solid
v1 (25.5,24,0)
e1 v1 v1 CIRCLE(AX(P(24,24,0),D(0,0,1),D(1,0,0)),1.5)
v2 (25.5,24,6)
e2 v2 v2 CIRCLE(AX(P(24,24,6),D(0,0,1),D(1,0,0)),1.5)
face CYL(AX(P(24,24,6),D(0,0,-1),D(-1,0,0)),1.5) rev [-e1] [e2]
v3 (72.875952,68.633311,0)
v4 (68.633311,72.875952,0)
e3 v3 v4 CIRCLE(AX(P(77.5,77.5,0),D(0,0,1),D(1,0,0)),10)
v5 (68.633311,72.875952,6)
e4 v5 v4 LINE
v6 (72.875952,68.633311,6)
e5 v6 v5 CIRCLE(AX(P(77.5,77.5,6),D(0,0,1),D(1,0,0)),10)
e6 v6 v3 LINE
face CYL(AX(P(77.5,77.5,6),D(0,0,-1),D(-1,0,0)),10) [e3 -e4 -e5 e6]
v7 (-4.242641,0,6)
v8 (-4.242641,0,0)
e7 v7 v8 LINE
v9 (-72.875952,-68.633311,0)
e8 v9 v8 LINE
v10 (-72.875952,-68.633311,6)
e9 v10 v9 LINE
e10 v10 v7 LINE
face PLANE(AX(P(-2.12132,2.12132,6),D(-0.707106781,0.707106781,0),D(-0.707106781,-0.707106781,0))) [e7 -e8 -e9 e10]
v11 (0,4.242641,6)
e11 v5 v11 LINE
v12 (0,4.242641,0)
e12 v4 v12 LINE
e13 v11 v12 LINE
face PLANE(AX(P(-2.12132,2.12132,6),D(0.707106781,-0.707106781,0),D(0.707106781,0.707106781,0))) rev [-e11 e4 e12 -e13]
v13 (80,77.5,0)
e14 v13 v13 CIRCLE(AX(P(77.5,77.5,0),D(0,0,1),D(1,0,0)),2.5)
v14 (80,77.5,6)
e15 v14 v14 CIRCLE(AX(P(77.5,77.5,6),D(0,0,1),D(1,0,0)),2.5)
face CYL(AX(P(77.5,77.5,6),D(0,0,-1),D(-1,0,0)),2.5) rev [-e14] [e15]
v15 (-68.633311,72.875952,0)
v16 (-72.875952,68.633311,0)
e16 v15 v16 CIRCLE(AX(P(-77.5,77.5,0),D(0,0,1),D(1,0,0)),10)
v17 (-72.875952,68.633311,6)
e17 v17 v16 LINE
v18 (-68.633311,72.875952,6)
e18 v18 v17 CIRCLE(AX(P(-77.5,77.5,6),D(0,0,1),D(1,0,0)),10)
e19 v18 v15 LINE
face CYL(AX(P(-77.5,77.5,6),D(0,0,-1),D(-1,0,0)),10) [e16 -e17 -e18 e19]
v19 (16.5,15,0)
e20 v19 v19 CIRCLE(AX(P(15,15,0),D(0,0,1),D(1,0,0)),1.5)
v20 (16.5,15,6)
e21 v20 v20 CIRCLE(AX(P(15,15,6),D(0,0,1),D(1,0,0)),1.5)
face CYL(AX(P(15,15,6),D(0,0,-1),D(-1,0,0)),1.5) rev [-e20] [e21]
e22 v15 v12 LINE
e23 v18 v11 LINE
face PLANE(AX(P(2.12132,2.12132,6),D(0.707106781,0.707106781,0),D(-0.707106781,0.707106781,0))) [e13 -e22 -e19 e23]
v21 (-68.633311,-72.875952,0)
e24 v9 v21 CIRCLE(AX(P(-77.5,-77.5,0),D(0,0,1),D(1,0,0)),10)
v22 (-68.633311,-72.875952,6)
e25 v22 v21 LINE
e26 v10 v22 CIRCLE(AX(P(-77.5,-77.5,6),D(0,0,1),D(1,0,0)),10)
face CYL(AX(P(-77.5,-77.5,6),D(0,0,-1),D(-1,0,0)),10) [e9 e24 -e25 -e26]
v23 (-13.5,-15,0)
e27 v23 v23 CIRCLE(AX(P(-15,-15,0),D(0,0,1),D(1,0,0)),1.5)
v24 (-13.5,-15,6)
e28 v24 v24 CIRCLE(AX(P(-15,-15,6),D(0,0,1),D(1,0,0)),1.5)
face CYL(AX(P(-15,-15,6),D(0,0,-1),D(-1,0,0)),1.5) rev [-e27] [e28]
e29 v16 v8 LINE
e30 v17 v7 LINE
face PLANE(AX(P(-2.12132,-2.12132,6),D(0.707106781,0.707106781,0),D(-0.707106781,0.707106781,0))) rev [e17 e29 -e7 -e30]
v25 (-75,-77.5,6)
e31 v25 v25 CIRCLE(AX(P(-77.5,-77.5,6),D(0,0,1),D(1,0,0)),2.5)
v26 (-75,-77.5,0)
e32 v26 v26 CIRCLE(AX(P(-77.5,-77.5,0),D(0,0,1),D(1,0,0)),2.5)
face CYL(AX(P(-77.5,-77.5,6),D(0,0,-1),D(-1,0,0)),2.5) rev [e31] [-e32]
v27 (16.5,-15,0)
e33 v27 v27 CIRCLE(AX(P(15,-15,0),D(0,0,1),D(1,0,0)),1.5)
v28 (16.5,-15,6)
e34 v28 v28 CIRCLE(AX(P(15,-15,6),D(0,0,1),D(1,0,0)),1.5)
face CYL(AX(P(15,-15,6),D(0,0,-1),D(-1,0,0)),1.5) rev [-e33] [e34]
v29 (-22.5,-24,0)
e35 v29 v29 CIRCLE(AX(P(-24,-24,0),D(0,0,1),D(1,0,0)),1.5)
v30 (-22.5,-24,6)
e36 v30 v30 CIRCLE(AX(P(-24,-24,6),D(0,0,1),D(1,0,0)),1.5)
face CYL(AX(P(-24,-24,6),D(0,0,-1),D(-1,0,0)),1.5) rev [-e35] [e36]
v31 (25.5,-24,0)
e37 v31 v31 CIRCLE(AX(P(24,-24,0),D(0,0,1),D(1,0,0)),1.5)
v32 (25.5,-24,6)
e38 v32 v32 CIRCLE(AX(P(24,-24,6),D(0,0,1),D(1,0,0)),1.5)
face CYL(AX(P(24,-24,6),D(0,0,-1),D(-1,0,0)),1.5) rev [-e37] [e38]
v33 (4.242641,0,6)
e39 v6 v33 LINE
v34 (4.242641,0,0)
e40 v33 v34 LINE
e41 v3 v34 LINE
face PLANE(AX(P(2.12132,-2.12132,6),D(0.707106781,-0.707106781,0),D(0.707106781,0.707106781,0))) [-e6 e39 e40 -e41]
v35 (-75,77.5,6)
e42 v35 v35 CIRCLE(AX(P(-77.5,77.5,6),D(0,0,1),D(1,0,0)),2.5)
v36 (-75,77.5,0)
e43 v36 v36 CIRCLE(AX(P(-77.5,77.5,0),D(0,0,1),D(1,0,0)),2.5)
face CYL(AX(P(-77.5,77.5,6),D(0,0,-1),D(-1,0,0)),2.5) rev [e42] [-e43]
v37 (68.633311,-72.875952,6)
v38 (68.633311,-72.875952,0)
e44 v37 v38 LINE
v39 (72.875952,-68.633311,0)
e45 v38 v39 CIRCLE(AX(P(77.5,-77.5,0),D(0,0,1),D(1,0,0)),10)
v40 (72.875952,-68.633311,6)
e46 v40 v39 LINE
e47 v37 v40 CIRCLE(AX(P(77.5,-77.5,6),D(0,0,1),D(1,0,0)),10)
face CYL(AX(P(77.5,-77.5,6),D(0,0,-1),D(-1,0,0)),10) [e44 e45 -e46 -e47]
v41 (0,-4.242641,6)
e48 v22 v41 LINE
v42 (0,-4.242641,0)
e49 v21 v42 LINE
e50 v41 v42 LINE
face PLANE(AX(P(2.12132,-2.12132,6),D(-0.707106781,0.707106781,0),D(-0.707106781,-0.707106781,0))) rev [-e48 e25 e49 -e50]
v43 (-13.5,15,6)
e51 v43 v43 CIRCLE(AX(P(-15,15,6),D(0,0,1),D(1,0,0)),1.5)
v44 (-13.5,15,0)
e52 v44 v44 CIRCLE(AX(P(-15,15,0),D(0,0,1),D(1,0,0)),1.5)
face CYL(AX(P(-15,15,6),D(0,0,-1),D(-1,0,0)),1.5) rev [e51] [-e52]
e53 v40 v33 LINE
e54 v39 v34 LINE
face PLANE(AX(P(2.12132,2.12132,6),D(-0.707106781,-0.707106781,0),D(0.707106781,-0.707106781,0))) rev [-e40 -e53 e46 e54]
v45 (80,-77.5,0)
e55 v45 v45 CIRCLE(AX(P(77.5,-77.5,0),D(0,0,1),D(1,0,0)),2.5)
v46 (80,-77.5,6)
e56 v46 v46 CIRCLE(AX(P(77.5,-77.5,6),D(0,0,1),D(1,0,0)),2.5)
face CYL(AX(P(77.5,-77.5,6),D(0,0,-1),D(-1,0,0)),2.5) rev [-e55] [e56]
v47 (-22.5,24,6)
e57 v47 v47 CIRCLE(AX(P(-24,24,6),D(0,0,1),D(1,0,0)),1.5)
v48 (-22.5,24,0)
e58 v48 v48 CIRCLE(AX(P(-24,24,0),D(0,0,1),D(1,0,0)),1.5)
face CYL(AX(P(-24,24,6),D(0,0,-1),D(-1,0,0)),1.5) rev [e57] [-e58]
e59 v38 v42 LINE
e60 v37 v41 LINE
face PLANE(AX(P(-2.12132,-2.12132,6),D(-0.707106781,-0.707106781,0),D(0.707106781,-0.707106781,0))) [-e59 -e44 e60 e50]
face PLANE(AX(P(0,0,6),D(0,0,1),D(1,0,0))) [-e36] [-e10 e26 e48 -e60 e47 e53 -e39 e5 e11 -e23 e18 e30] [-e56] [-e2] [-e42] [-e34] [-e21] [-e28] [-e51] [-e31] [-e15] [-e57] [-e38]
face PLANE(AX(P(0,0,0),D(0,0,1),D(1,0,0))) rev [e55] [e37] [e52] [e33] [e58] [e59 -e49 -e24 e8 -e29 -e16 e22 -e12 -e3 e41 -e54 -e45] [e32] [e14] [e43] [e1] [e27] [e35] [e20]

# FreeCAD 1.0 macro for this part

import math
import FreeCAD as App
import Part
import Sketcher
from FreeCAD import Vector
Q = App.Units.Quantity

doc = App.newDocument("Part")
params = doc.addObject("Spreadsheet::Sheet", "Params")
for row, (alias, value) in enumerate([
    ("sketch1_diameter", "5 mm"),
    ("sketch1_diameter2", "3 mm"),
    ("sketch1_radius", "10 mm"),
    ("pad1_length", "6 mm"),
], start=1):
    params.set(f"A{row}", alias)
    params.set(f"B{row}", "=" + value)
    params.setAlias(f"B{row}", alias)

body = doc.addObject("PartDesign::Body", "Body")

# Sketch on XY plane
sketch1 = body.newObject("Sketcher::SketchObject", "Sketch")
sketch1.AttachmentSupport = (doc.getObject("XY_Plane"), [""])
sketch1.MapMode = "FlatFace"
sketch1.addGeometry([
    Part.LineSegment(Vector(-4.242641, 0, 0), Vector(-72.875952, -68.633311, 0)),  # 0
    Part.ArcOfCircle(Part.Circle(Vector(-77.5, -77.5, 0), Vector(0, 0, 1), 10), math.radians(62.457603), math.radians(387.542397)),  # 1
    Part.LineSegment(Vector(-68.633311, -72.875952, 0), Vector(0, -4.242641, 0)),  # 2
    Part.LineSegment(Vector(0, -4.242641, 0), Vector(68.633311, -72.875952, 0)),  # 3
    Part.ArcOfCircle(Part.Circle(Vector(77.5, -77.5, 0), Vector(0, 0, 1), 10), math.radians(152.457603), math.radians(477.542397)),  # 4
    Part.LineSegment(Vector(72.875952, -68.633311, 0), Vector(4.242641, 0, 0)),  # 5
    Part.LineSegment(Vector(4.242641, 0, 0), Vector(72.875952, 68.633311, 0)),  # 6
    Part.ArcOfCircle(Part.Circle(Vector(77.5, 77.5, 0), Vector(0, 0, 1), 10), math.radians(-117.542397), math.radians(207.542397)),  # 7
    Part.LineSegment(Vector(68.633311, 72.875952, 0), Vector(0, 4.242641, 0)),  # 8
    Part.LineSegment(Vector(0, 4.242641, 0), Vector(-68.633311, 72.875952, 0)),  # 9
    Part.ArcOfCircle(Part.Circle(Vector(-77.5, 77.5, 0), Vector(0, 0, 1), 10), math.radians(-27.542397), math.radians(297.542397)),  # 10
    Part.LineSegment(Vector(-72.875952, 68.633311, 0), Vector(-4.242641, 0, 0)),  # 11
    Part.Circle(Vector(77.5, -77.5, 0), Vector(0, 0, 1), 2.5),  # 12
    Part.Circle(Vector(24, -24, 0), Vector(0, 0, 1), 1.5),  # 13
    Part.Circle(Vector(15, -15, 0), Vector(0, 0, 1), 1.5),  # 14
    Part.Circle(Vector(-77.5, -77.5, 0), Vector(0, 0, 1), 2.5),  # 15
    Part.Circle(Vector(-24, -24, 0), Vector(0, 0, 1), 1.5),  # 16
    Part.Circle(Vector(-15, -15, 0), Vector(0, 0, 1), 1.5),  # 17
    Part.Circle(Vector(15, 15, 0), Vector(0, 0, 1), 1.5),  # 18
    Part.Circle(Vector(24, 24, 0), Vector(0, 0, 1), 1.5),  # 19
    Part.Circle(Vector(77.5, 77.5, 0), Vector(0, 0, 1), 2.5),  # 20
    Part.Circle(Vector(-15, 15, 0), Vector(0, 0, 1), 1.5),  # 21
    Part.Circle(Vector(-24, 24, 0), Vector(0, 0, 1), 1.5),  # 22
    Part.Circle(Vector(-77.5, 77.5, 0), Vector(0, 0, 1), 2.5),  # 23
], False)
sketch1.addConstraint([
    Sketcher.Constraint("Coincident", 0, 2, 1, 1),
    Sketcher.Constraint("Coincident", 1, 2, 2, 1),
    Sketcher.Constraint("Coincident", 2, 2, 3, 1),
    Sketcher.Constraint("Coincident", 3, 2, 4, 1),
    Sketcher.Constraint("Coincident", 4, 2, 5, 1),
    Sketcher.Constraint("Coincident", 5, 2, 6, 1),
    Sketcher.Constraint("Coincident", 6, 2, 7, 1),
    Sketcher.Constraint("Coincident", 7, 2, 8, 1),
    Sketcher.Constraint("Coincident", 8, 2, 9, 1),
    Sketcher.Constraint("Coincident", 9, 2, 10, 1),
    Sketcher.Constraint("Coincident", 10, 2, 11, 1),
    Sketcher.Constraint("Coincident", 11, 2, 0, 1),
    Sketcher.Constraint("Coincident", 12, 3, 4, 3),
    Sketcher.Constraint("Coincident", 15, 3, 1, 3),
    Sketcher.Constraint("Coincident", 20, 3, 7, 3),
    Sketcher.Constraint("Coincident", 23, 3, 10, 3),
    Sketcher.Constraint("Equal", 1, 4),
    Sketcher.Constraint("Equal", 4, 7),
    Sketcher.Constraint("Equal", 7, 10),
    Sketcher.Constraint("Equal", 13, 14),
    Sketcher.Constraint("Equal", 12, 15),
    Sketcher.Constraint("Equal", 14, 16),
    Sketcher.Constraint("Equal", 16, 17),
    Sketcher.Constraint("Equal", 17, 18),
    Sketcher.Constraint("Equal", 18, 19),
    Sketcher.Constraint("Equal", 15, 20),
    Sketcher.Constraint("Equal", 19, 21),
    Sketcher.Constraint("Equal", 21, 22),
    Sketcher.Constraint("Equal", 20, 23),
    Sketcher.Constraint("Symmetric", 1, 3, 7, 3, -1, 1),
    Sketcher.Constraint("Symmetric", 4, 3, 10, 3, -1, 1),
    Sketcher.Constraint("Symmetric", 17, 3, 18, 3, -1, 1),
    Sketcher.Constraint("Symmetric", 16, 3, 19, 3, -1, 1),
    Sketcher.Constraint("Symmetric", 14, 3, 21, 3, -1, 1),
    Sketcher.Constraint("Symmetric", 13, 3, 22, 3, -1, 1),
    Sketcher.Constraint("Symmetric", 2, 2, 8, 2, -1, 1),
    Sketcher.Constraint("Symmetric", 5, 2, 11, 2, -1, 1),
    Sketcher.Constraint("Symmetric", 1, 3, 4, 3, -2),
    Sketcher.Constraint("Symmetric", 13, 3, 16, 3, -2),
    Sketcher.Constraint("Symmetric", 14, 3, 17, 3, -2),
    Sketcher.Constraint("PointOnObject", 2, 2, -2),
    Sketcher.Constraint("PointOnObject", 5, 2, -1),
    Sketcher.Constraint("Parallel", 0, 2),
    Sketcher.Constraint("Perpendicular", 2, 3),
    Sketcher.Constraint("Parallel", 3, 5),
    Sketcher.Constraint("Perpendicular", 5, 6),
    Sketcher.Constraint("Parallel", 6, 8),
    Sketcher.Constraint("Perpendicular", 8, 9),
    Sketcher.Constraint("Parallel", 9, 11),
    Sketcher.Constraint("Horizontal", 1, 2, 3, 2),
    Sketcher.Constraint("Equal", 0, 2),
    Sketcher.Constraint("Diameter", 12, Q("5 mm")),
    Sketcher.Constraint("Diameter", 13, Q("3 mm")),
    Sketcher.Constraint("Radius", 1, Q("10 mm")),
    Sketcher.Constraint("DistanceX", -1, 1, 13, 3, Q("24 mm")),
    Sketcher.Constraint("DistanceY", 13, 3, -1, 1, Q("24 mm")),
    Sketcher.Constraint("DistanceX", -1, 1, 14, 3, Q("15 mm")),
    Sketcher.Constraint("DistanceY", 14, 3, -1, 1, Q("15 mm")),
    Sketcher.Constraint("DistanceX", 1, 3, 4, 3, Q("155 mm")),
    Sketcher.Constraint("DistanceY", 4, 3, 7, 3, Q("155 mm")),
    Sketcher.Constraint("Distance", 0, Q("97.062159 mm")),
])
sketch1.setExpression("Constraints[51]", "Params.sketch1_diameter")
sketch1.setExpression("Constraints[52]", "Params.sketch1_diameter2")
sketch1.setExpression("Constraints[53]", "Params.sketch1_radius")
pad1 = body.newObject("PartDesign::Pad", "Pad")
pad1.Profile = sketch1
pad1.setExpression("Length", "Params.pad1_length")

doc.recompute()
